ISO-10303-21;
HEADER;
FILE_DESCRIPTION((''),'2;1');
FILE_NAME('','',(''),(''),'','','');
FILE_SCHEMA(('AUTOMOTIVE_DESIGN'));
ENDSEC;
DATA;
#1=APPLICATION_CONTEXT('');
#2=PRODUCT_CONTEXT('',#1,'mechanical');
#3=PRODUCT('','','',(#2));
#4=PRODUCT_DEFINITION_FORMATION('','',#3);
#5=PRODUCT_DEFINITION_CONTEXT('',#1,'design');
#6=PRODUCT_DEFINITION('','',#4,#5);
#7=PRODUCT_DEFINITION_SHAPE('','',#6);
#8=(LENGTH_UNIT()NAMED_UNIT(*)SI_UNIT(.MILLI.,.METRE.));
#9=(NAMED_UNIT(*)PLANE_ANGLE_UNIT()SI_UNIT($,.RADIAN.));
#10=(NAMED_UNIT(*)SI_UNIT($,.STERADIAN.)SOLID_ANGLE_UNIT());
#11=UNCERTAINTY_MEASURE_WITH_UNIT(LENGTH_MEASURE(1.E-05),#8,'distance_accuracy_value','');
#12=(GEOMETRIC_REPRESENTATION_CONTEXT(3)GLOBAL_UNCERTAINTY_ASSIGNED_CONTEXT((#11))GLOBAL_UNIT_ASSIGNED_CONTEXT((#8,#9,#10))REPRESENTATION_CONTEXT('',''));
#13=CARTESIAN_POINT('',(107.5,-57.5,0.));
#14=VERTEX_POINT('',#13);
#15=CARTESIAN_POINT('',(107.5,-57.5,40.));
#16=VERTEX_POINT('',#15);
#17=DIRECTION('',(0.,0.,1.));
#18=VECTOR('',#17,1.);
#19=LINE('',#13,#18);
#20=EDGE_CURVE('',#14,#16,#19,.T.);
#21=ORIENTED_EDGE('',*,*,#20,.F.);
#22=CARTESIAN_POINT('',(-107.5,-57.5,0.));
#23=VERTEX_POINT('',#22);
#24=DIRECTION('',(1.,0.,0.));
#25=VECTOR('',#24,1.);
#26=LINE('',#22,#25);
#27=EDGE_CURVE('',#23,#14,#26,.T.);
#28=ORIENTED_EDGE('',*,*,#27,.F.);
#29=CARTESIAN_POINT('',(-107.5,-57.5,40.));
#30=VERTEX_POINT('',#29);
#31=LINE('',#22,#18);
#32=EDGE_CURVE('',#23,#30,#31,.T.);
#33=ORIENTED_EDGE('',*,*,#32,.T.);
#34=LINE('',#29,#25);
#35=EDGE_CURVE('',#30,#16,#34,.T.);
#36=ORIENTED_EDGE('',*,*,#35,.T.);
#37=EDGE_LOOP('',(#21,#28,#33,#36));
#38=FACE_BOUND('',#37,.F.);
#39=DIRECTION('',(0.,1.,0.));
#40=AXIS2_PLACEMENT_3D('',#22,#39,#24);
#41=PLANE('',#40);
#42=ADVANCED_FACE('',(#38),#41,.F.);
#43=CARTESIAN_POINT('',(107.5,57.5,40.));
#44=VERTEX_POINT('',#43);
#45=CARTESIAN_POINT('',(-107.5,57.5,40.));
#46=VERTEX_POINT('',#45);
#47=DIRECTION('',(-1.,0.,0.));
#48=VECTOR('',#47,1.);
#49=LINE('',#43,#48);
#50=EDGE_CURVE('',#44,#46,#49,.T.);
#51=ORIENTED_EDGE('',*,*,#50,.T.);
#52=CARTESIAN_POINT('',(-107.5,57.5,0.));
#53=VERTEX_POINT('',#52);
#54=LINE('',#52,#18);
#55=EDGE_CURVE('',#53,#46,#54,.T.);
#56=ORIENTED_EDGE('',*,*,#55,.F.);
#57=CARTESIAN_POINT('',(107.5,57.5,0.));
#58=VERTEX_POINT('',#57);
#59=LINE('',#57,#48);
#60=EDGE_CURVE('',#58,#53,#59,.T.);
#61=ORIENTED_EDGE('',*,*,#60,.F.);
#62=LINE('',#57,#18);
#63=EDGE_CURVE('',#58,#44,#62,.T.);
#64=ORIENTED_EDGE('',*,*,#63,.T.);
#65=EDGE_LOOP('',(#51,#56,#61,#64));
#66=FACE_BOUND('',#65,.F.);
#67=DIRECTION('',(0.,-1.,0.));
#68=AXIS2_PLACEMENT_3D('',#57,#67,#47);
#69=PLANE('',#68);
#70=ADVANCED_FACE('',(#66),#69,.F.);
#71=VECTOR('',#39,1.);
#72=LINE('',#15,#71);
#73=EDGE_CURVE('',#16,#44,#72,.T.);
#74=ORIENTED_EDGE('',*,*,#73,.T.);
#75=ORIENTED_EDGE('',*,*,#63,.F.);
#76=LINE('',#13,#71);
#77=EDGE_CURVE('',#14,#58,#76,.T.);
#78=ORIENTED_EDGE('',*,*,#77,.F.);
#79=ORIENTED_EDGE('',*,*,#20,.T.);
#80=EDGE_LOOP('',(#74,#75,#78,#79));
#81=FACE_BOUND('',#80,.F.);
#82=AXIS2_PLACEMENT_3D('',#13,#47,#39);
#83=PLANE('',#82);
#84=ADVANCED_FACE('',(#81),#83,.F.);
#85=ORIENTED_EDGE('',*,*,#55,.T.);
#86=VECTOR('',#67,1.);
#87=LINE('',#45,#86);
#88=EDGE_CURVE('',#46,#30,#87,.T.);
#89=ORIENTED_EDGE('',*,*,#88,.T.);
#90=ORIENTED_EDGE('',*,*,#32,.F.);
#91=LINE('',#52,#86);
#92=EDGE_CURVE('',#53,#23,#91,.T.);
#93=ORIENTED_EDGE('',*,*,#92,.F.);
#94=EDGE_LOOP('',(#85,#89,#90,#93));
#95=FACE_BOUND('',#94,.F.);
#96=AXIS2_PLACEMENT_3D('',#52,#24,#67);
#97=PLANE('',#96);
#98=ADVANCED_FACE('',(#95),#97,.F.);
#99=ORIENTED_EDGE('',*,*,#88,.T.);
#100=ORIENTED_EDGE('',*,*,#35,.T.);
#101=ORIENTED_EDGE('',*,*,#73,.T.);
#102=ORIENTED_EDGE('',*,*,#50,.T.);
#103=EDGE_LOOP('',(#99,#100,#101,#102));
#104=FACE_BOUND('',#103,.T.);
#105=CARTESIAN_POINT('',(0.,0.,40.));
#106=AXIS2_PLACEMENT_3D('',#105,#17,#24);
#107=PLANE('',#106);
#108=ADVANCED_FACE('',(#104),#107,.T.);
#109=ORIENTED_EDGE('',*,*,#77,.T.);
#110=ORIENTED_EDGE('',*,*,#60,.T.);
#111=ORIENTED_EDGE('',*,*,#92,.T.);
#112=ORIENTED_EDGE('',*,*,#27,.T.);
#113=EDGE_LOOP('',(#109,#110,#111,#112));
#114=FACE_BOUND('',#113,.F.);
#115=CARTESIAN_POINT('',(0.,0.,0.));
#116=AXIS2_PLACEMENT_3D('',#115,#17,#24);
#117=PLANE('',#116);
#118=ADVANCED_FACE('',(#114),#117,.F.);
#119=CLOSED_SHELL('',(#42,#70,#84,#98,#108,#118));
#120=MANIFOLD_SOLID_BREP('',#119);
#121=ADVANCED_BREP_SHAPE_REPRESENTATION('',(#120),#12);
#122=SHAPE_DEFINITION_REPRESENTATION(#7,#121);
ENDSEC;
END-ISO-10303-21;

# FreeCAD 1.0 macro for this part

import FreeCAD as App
import Part
import Sketcher
Q = App.Units.Quantity


def add_polygon(sketch, points):
    """Adds a closed chain of lines whose ends are joined by coincident constraints."""
    first, n = sketch.GeometryCount, len(points)
    for a, b in zip(points, points[1:] + points[:1]):
        sketch.addGeometry(Part.LineSegment(App.Vector(*a, 0), App.Vector(*b, 0)), False)
    for i in range(n):
        sketch.addConstraint(Sketcher.Constraint("Coincident", first + i, 2, first + (i + 1) % n, 1))

doc = App.newDocument("Part")
body = doc.addObject("PartDesign::Body", "Body")

# Sketch on XY plane
sketch1 = body.newObject("Sketcher::SketchObject", "Sketch")
sketch1.AttachmentSupport = (doc.getObject("XY_Plane"), [""])
sketch1.MapMode = "FlatFace"
add_polygon(sketch1, [(-108, 58), (-108, -58), (108, -58), (108, 58)])  # lines 0-3
sketch1.addConstraint(Sketcher.Constraint("Vertical", 0))
sketch1.addConstraint(Sketcher.Constraint("Horizontal", 1))
sketch1.addConstraint(Sketcher.Constraint("Vertical", 2))
sketch1.addConstraint(Sketcher.Constraint("Horizontal", 3))
sketch1.addConstraint(Sketcher.Constraint("Symmetric", 0, 2, 2, 2, -1, 1))
sketch1.addConstraint(Sketcher.Constraint("DistanceX", 1, 1, 1, 2, Q("215 mm")))
sketch1.addConstraint(Sketcher.Constraint("DistanceY", 0, 2, 0, 1, Q("115 mm")))
pad1 = body.newObject("PartDesign::Pad", "Pad")
pad1.Profile = sketch1
pad1.Length = 40

doc.recompute()
